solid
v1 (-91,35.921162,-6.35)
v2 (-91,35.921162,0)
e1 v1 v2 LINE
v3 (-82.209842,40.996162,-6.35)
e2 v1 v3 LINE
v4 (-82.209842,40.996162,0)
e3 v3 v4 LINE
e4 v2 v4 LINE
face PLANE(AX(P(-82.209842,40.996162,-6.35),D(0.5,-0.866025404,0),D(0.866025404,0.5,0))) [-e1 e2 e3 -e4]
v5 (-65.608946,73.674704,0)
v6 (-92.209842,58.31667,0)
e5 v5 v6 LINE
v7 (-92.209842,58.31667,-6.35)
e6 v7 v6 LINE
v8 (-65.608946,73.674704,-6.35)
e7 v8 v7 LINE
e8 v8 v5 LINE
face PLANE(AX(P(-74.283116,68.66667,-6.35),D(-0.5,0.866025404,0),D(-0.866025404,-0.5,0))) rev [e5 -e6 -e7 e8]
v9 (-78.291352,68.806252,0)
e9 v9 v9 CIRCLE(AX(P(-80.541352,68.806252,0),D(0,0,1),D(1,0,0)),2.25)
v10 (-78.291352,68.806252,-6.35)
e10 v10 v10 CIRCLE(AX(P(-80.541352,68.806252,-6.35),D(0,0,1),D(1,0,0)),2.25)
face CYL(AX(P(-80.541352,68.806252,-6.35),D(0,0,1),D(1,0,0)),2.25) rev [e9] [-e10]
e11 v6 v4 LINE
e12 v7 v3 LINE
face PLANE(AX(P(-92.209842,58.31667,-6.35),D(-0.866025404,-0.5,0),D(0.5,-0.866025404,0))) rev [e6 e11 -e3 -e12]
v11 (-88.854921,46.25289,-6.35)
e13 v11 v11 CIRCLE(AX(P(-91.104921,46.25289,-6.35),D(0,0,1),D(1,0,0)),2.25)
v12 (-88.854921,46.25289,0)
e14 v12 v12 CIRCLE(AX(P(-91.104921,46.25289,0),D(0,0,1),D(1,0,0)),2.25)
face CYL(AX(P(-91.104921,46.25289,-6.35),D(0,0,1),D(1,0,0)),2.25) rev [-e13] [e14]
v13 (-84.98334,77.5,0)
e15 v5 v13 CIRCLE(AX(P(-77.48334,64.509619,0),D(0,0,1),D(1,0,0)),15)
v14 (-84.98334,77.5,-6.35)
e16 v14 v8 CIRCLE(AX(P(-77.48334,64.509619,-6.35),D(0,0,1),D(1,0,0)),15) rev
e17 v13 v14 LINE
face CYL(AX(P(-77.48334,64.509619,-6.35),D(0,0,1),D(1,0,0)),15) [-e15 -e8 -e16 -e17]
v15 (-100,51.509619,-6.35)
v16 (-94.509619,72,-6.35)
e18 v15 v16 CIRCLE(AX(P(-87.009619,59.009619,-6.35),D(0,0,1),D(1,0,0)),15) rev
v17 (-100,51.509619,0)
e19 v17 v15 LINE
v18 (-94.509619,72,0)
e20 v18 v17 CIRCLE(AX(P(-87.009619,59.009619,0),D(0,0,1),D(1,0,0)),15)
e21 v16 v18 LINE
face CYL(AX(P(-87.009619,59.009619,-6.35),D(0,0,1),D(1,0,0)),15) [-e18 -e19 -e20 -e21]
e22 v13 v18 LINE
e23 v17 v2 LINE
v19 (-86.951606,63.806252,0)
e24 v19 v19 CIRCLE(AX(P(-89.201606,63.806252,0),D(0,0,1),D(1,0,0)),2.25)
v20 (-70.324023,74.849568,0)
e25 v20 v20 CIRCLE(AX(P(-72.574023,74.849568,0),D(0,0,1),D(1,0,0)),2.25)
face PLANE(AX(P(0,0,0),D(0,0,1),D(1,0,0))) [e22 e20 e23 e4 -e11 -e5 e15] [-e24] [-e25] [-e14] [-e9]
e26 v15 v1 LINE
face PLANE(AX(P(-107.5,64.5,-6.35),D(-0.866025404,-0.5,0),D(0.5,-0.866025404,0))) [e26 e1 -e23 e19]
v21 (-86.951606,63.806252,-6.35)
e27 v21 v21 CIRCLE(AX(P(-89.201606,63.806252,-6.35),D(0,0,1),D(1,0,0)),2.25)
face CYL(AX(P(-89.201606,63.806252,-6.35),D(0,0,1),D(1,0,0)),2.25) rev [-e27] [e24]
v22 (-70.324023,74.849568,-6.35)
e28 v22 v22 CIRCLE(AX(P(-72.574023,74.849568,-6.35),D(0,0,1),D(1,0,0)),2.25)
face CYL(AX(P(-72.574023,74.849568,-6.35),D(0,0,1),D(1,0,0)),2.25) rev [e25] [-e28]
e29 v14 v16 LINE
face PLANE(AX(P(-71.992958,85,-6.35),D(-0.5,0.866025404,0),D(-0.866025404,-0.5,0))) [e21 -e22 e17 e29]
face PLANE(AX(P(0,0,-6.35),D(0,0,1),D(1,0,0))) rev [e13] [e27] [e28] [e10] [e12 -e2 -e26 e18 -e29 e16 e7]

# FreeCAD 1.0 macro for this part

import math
import FreeCAD as App
import Part
import Sketcher
Q = App.Units.Quantity


def edges_at(feature, points):
    """Names of the edges that pass closest to the given points."""
    edges = feature.Shape.Edges
    near = lambda p: min(range(len(edges)), key=lambda i: edges[i].distToShape(Part.Vertex(*p))[0])
    return sorted({f"Edge{near(p) + 1}" for p in points})


def add_polygon(sketch, points):
    """Adds a closed chain of lines whose ends are joined by coincident constraints."""
    first, n = sketch.GeometryCount, len(points)
    for a, b in zip(points, points[1:] + points[:1]):
        sketch.addGeometry(Part.LineSegment(App.Vector(*a, 0), App.Vector(*b, 0)), False)
    for i in range(n):
        sketch.addConstraint(Sketcher.Constraint("Coincident", first + i, 2, first + (i + 1) % n, 1))

doc = App.newDocument("Part")
params = doc.addObject("Spreadsheet::Sheet", "Params")
for row, (alias, value) in enumerate([
    ("sketch1_length", "41 mm"),
    ("sketch1_length2", "60 mm"),
    ("sketch1_width", "53.75 mm"),
    ("pad1_length", "6.35 mm"),
    ("fillet_radius", "20 mm"),
    ("fillet2_radius", "15 mm"),
    ("sketch2_diameter", "4.5 mm"),
    ("sketch2_length", "42 mm"),
    ("sketch2_length2", "6 mm"),
    ("sketch2_length3", "20.7 mm"),
    ("pocket1_length", "6.35 mm"),
    ("sketch3_diameter", "4.5 mm"),
    ("sketch3_length", "42 mm"),
    ("sketch3_length2", "6 mm"),
    ("sketch3_length3", "20.7 mm"),
    ("pocket2_length", "6.35 mm"),
    ("sketch4_diameter", "4 mm"),
    ("hole_diameter", "4 mm"),
    ("sketch5_radius", "15 mm"),
    ("sketch5_length", "20 mm"),
    ("sketch5_length2", "18 mm"),
    ("sketch5_length3", "11 mm"),
    ("sketch5_width", "257.77 mm"),
    ("sketch6_diameter", "4.5 mm"),
], start=1):
    params.set(f"A{row}", alias)
    params.set(f"B{row}", "=" + value)
    params.setAlias(f"B{row}", alias)

body = doc.addObject("PartDesign::Body", "Body")

# Sketch on XY plane
sketch1 = body.newObject("Sketcher::SketchObject", "Sketch")
sketch1.AttachmentSupport = (doc.getObject("XY_Plane"), [""])
sketch1.MapMode = "FlatFace"
add_polygon(sketch1, [(55, 55), (-55, 55), (-72, 85), (-108, 64), (-78, 13), (-78, -13), (-108, -64), (-72, -85), (-55, -55), (55, -55), (72, -85), (108, -64), (78, -13), (78, 13), (108, 64), (72, 85)])  # lines 0-15
add_polygon(sketch1, [(-27, -37), (-27, 37), (27, 37), (27, -37)])  # lines 16-19
sketch1.addConstraint(Sketcher.Constraint("Horizontal", 0))
sketch1.addConstraint(Sketcher.Constraint("Vertical", 4))
sketch1.addConstraint(Sketcher.Constraint("Horizontal", 8))
sketch1.addConstraint(Sketcher.Constraint("Vertical", 12))
sketch1.addConstraint(Sketcher.Constraint("Vertical", 16))
sketch1.addConstraint(Sketcher.Constraint("Horizontal", 17))
sketch1.addConstraint(Sketcher.Constraint("Vertical", 18))
sketch1.addConstraint(Sketcher.Constraint("Horizontal", 19))
sketch1.addConstraint(Sketcher.Constraint("Symmetric", 0, 2, 8, 2, -1, 1))
sketch1.addConstraint(Sketcher.Constraint("Symmetric", 1, 2, 9, 2, -1, 1))
sketch1.addConstraint(Sketcher.Constraint("Symmetric", 2, 2, 10, 2, -1, 1))
sketch1.addConstraint(Sketcher.Constraint("Symmetric", 3, 2, 11, 2, -1, 1))
sketch1.addConstraint(Sketcher.Constraint("Symmetric", 5, 2, 13, 2, -1, 1))
sketch1.addConstraint(Sketcher.Constraint("Symmetric", 6, 2, 14, 2, -1, 1))
sketch1.addConstraint(Sketcher.Constraint("Symmetric", 16, 2, 18, 2, -1, 1))
sketch1.addConstraint(Sketcher.Constraint("Symmetric", 6, 2, 9, 2, -2))
sketch1.addConstraint(Sketcher.Constraint("Symmetric", 5, 2, 10, 2, -2))
sketch1.addConstraint(Sketcher.Constraint("Perpendicular", 1, 2))
sketch1.addConstraint(Sketcher.Constraint("Perpendicular", 2, 3))
sketch1.addConstraint(Sketcher.Constraint("Perpendicular", 5, 6))
sketch1.addConstraint(Sketcher.Constraint("Perpendicular", 6, 7))
sketch1.addConstraint(Sketcher.Constraint("Parallel", 7, 13))
sketch1.addConstraint(Sketcher.Constraint("Perpendicular", 14, 15))
sketch1.addConstraint(Sketcher.Constraint("Angle", 1, Q("120 deg")))
sketch1.addConstraint(Sketcher.Constraint("Distance", 2, Q("41 mm")))
sketch1.addConstraint(Sketcher.Constraint("Distance", 3, Q("60 mm")))
sketch1.addConstraint(Sketcher.Constraint("DistanceY", -1, 1, 0, 2, Q("55 mm")))
sketch1.addConstraint(Sketcher.Constraint("DistanceY", -1, 1, 1, 2, Q("85 mm")))
sketch1.addConstraint(Sketcher.Constraint("DistanceX", 4, 2, 10, 2, Q("185 mm")))
sketch1.addConstraint(Sketcher.Constraint("DistanceX", 17, 1, 17, 2, Q("53.75 mm")))
sketch1.addConstraint(Sketcher.Constraint("DistanceY", 16, 1, 16, 2, Q("73.333333 mm")))
sketch1.setExpression("Constraints[44]", "Params.sketch1_length")
sketch1.setExpression("Constraints[45]", "Params.sketch1_length2")
sketch1.setExpression("Constraints[49]", "Params.sketch1_width")
pad1 = body.newObject("PartDesign::Pad", "Pad")
pad1.Profile = sketch1
pad1.setExpression("Length", "Params.pad1_length")
pad1.Reversed = True
doc.recompute()

fillet = body.newObject("PartDesign::Fillet", "Fillet")
fillet.Base = (pad1, edges_at(pad1, [
    (-54.672, 55, -3.175),
    (54.672, 55, -3.175),
    (77.5, 12.538, -3.175),
    (77.5, -12.538, -3.175),
    (54.672, -55, -3.175),
    (-54.672, -55, -3.175),
    (-77.5, -12.538, -3.175),
    (-77.5, 12.538, -3.175),
    (-26.875, -36.667, -3.175),
    (-26.875, 36.667, -3.175),
    (26.875, 36.667, -3.175),
    (26.875, -36.667, -3.175),
]))
fillet.setExpression("Radius", "Params.fillet_radius")
doc.recompute()

fillet2 = body.newObject("PartDesign::Fillet", "Fillet001")
fillet2.Base = (fillet, edges_at(fillet, [
    (71.993, 85, -3.175),
    (107.5, 64.5, -3.175),
    (107.5, -64.5, -3.175),
    (71.993, -85, -3.175),
    (-71.993, -85, -3.175),
    (-107.5, -64.5, -3.175),
    (-107.5, 64.5, -3.175),
    (-71.993, 85, -3.175),
]))
fillet2.setExpression("Radius", "Params.fillet2_radius")

# Sketch on XY plane
sketch2 = body.newObject("Sketcher::SketchObject", "Sketch001")
sketch2.AttachmentSupport = (doc.getObject("XY_Plane"), [""])
sketch2.MapMode = "FlatFace"
sketch2.addGeometry(Part.Circle(App.Vector(-56.3, 26.8, 0), App.Vector(0, 0, 1), 2.2), False)  # 0
sketch2.addGeometry(Part.Circle(App.Vector(-65, 21.8, 0), App.Vector(0, 0, 1), 2.2), False)  # 1
sketch2.addGeometry(Part.Circle(App.Vector(-89.2, 63.8, 0), App.Vector(0, 0, 1), 2.2), False)  # 2
sketch2.addGeometry(Part.Circle(App.Vector(-80.5, 68.8, 0), App.Vector(0, 0, 1), 2.2), False)  # 3
add_polygon(sketch2, [(-53.3, 32.3), (-74.3, 68.7), (-92.2, 58.3), (-71.2, 21.9)])  # lines 4-7
sketch2.addGeometry(Part.LineSegment(App.Vector(-54.7, 9.5, 0), App.Vector(-51.7, 4.3, 0)), False)  # 8
sketch2.addGeometry(Part.ArcOfCircle(Part.Circle(App.Vector(-49.7, 5.5, 0), App.Vector(0, 0, 1), 2.2), math.radians(-150), math.radians(30)), False)  # 9
sketch2.addGeometry(Part.LineSegment(App.Vector(-47.8, 6.6, 0), App.Vector(-50.8, 11.8, 0)), False)  # 10
sketch2.addGeometry(Part.ArcOfCircle(Part.Circle(App.Vector(-52.7, 10.7, 0), App.Vector(0, 0, 1), 2.2), math.radians(30), math.radians(210)), False)  # 11
sketch2.addConstraint(Sketcher.Constraint("Tangent", 8, 2, 9, 1))
sketch2.addConstraint(Sketcher.Constraint("Tangent", 9, 2, 10, 1))
sketch2.addConstraint(Sketcher.Constraint("Tangent", 10, 2, 11, 1))
sketch2.addConstraint(Sketcher.Constraint("Tangent", 11, 2, 8, 1))
sketch2.addConstraint(Sketcher.Constraint("Equal", 0, 1))
sketch2.addConstraint(Sketcher.Constraint("Equal", 1, 2))
sketch2.addConstraint(Sketcher.Constraint("Equal", 2, 3))
sketch2.addConstraint(Sketcher.Constraint("Equal", 3, 9))
sketch2.addConstraint(Sketcher.Constraint("Equal", 9, 11))
sketch2.addConstraint(Sketcher.Constraint("Perpendicular", 4, 5))
sketch2.addConstraint(Sketcher.Constraint("Perpendicular", 5, 6))
sketch2.addConstraint(Sketcher.Constraint("Perpendicular", 6, 7))
sketch2.addConstraint(Sketcher.Constraint("Perpendicular", 7, 8))
sketch2.addConstraint(Sketcher.Constraint("Diameter", 0, Q("4.5 mm")))
sketch2.addConstraint(Sketcher.Constraint("Angle", 4, Q("120 deg")))
sketch2.addConstraint(Sketcher.Constraint("Distance", 4, Q("42 mm")))
sketch2.addConstraint(Sketcher.Constraint("Distance", 8, Q("6 mm")))
sketch2.addConstraint(Sketcher.Constraint("DistanceY", 1, 3, 0, 3, Q("5 mm")))
sketch2.addConstraint(Sketcher.Constraint("DistanceY", 2, 3, 3, 3, Q("5 mm")))
sketch2.addConstraint(Sketcher.Constraint("Distance", 5, Q("20.7 mm")))
sketch2.addConstraint(Sketcher.Constraint("DistanceX", 2, 3, 1, 3, Q("24.25 mm")))
sketch2.addConstraint(Sketcher.Constraint("DistanceX", 3, 3, 0, 3, Q("24.25 mm")))
sketch2.addConstraint(Sketcher.Constraint("DistanceY", 11, 3, 1, 3, Q("11.1399 mm")))
sketch2.addConstraint(Sketcher.Constraint("DistanceY", -1, 1, 0, 3, Q("26.80402 mm")))
sketch2.addConstraint(Sketcher.Constraint("DistanceX", 9, 3, -1, 1, Q("49.746479 mm")))
sketch2.addConstraint(Sketcher.Constraint("DistanceY", -1, 1, 4, 2, Q("68.66667 mm")))
sketch2.addConstraint(Sketcher.Constraint("DistanceX", 2, 3, 4, 2, Q("14.91849 mm")))
sketch2.addConstraint(Sketcher.Constraint("DistanceX", 5, 2, 3, 3, Q("11.66849 mm")))
sketch2.addConstraint(Sketcher.Constraint("DistanceX", 1, 3, 8, 2, Q("13.25657 mm")))
sketch2.addConstraint(Sketcher.Constraint("DistanceY", -1, 1, 2, 3, Q("63.806252 mm")))
sketch2.setExpression("Constraints[17]", "Params.sketch2_diameter")
sketch2.setExpression("Constraints[19]", "Params.sketch2_length")
sketch2.setExpression("Constraints[20]", "Params.sketch2_length2")
sketch2.setExpression("Constraints[23]", "Params.sketch2_length3")
pocket1 = body.newObject("PartDesign::Pocket", "Pocket")
pocket1.Profile = sketch2
pocket1.setExpression("Length", "Params.pocket1_length")
doc.recompute()

mirrored = body.newObject("PartDesign::Mirrored", "Mirrored")
mirrored.Originals = [pocket1]
mirrored.MirrorPlane = (doc.getObject("XZ_Plane"), [""])
body.Tip = mirrored
doc.recompute()

mirrored2 = body.newObject("PartDesign::Mirrored", "Mirrored001")
mirrored2.Originals = [pocket1]
mirrored2.MirrorPlane = (doc.getObject("YZ_Plane"), [""])
body.Tip = mirrored2

# Sketch on XY plane
sketch3 = body.newObject("Sketcher::SketchObject", "Sketch002")
sketch3.AttachmentSupport = (doc.getObject("XY_Plane"), [""])
sketch3.MapMode = "FlatFace"
sketch3.addGeometry(Part.Circle(App.Vector(56.3, -26.8, 0), App.Vector(0, 0, 1), 2.2), False)  # 0
sketch3.addGeometry(Part.Circle(App.Vector(65, -21.8, 0), App.Vector(0, 0, 1), 2.2), False)  # 1
sketch3.addGeometry(Part.Circle(App.Vector(89.2, -63.8, 0), App.Vector(0, 0, 1), 2.2), False)  # 2
sketch3.addGeometry(Part.Circle(App.Vector(80.5, -68.8, 0), App.Vector(0, 0, 1), 2.2), False)  # 3
add_polygon(sketch3, [(53.3, -32.3), (74.3, -68.7), (92.2, -58.3), (71.2, -21.9)])  # lines 4-7
sketch3.addGeometry(Part.LineSegment(App.Vector(54.7, -9.5, 0), App.Vector(51.7, -4.3, 0)), False)  # 8
sketch3.addGeometry(Part.ArcOfCircle(Part.Circle(App.Vector(49.7, -5.5, 0), App.Vector(0, 0, 1), 2.2), math.radians(30), math.radians(210)), False)  # 9
sketch3.addGeometry(Part.LineSegment(App.Vector(47.8, -6.6, 0), App.Vector(50.8, -11.8, 0)), False)  # 10
sketch3.addGeometry(Part.ArcOfCircle(Part.Circle(App.Vector(52.7, -10.7, 0), App.Vector(0, 0, 1), 2.2), math.radians(-150), math.radians(30)), False)  # 11
sketch3.addConstraint(Sketcher.Constraint("Tangent", 8, 2, 9, 1))
sketch3.addConstraint(Sketcher.Constraint("Tangent", 9, 2, 10, 1))
sketch3.addConstraint(Sketcher.Constraint("Tangent", 10, 2, 11, 1))
sketch3.addConstraint(Sketcher.Constraint("Tangent", 11, 2, 8, 1))
sketch3.addConstraint(Sketcher.Constraint("Equal", 0, 1))
sketch3.addConstraint(Sketcher.Constraint("Equal", 1, 2))
sketch3.addConstraint(Sketcher.Constraint("Equal", 2, 3))
sketch3.addConstraint(Sketcher.Constraint("Equal", 3, 9))
sketch3.addConstraint(Sketcher.Constraint("Equal", 9, 11))
sketch3.addConstraint(Sketcher.Constraint("Perpendicular", 4, 5))
sketch3.addConstraint(Sketcher.Constraint("Perpendicular", 5, 6))
sketch3.addConstraint(Sketcher.Constraint("Perpendicular", 6, 7))
sketch3.addConstraint(Sketcher.Constraint("Perpendicular", 7, 8))
sketch3.addConstraint(Sketcher.Constraint("Diameter", 0, Q("4.5 mm")))
sketch3.addConstraint(Sketcher.Constraint("Angle", 4, Q("-60 deg")))
sketch3.addConstraint(Sketcher.Constraint("Distance", 4, Q("42 mm")))
sketch3.addConstraint(Sketcher.Constraint("Distance", 8, Q("6 mm")))
sketch3.addConstraint(Sketcher.Constraint("DistanceY", 0, 3, 1, 3, Q("5 mm")))
sketch3.addConstraint(Sketcher.Constraint("DistanceY", 3, 3, 2, 3, Q("5 mm")))
sketch3.addConstraint(Sketcher.Constraint("Distance", 5, Q("20.7 mm")))
sketch3.addConstraint(Sketcher.Constraint("DistanceX", 1, 3, 2, 3, Q("24.25 mm")))
sketch3.addConstraint(Sketcher.Constraint("DistanceX", 0, 3, 3, 3, Q("24.25 mm")))
sketch3.addConstraint(Sketcher.Constraint("DistanceY", 1, 3, 11, 3, Q("11.1399 mm")))
sketch3.addConstraint(Sketcher.Constraint("DistanceY", 0, 3, -1, 1, Q("26.80402 mm")))
sketch3.addConstraint(Sketcher.Constraint("DistanceX", -1, 1, 9, 3, Q("49.746479 mm")))
sketch3.addConstraint(Sketcher.Constraint("DistanceY", 4, 2, -1, 1, Q("68.66667 mm")))
sketch3.addConstraint(Sketcher.Constraint("DistanceX", 4, 2, 2, 3, Q("14.91849 mm")))
sketch3.addConstraint(Sketcher.Constraint("DistanceX", 3, 3, 5, 2, Q("11.66849 mm")))
sketch3.addConstraint(Sketcher.Constraint("DistanceX", 8, 2, 1, 3, Q("13.25657 mm")))
sketch3.addConstraint(Sketcher.Constraint("DistanceY", 2, 3, -1, 1, Q("63.806252 mm")))
sketch3.setExpression("Constraints[17]", "Params.sketch3_diameter")
sketch3.setExpression("Constraints[19]", "Params.sketch3_length")
sketch3.setExpression("Constraints[20]", "Params.sketch3_length2")
sketch3.setExpression("Constraints[23]", "Params.sketch3_length3")
pocket2 = body.newObject("PartDesign::Pocket", "Pocket001")
pocket2.Profile = sketch3
pocket2.setExpression("Length", "Params.pocket2_length")

# Sketch on XY plane
sketch4 = body.newObject("Sketcher::SketchObject", "Sketch003")
sketch4.AttachmentSupport = (doc.getObject("XY_Plane"), [""])
sketch4.MapMode = "FlatFace"
sketch4.addGeometry(Part.Circle(App.Vector(33, 48, 0), App.Vector(0, 0, 1), 2), False)
sketch4.addGeometry(Part.Circle(App.Vector(-33, 48, 0), App.Vector(0, 0, 1), 2), False)
sketch4.addGeometry(Part.Circle(App.Vector(-33, -48, 0), App.Vector(0, 0, 1), 2), False)
sketch4.addGeometry(Part.Circle(App.Vector(33, -48, 0), App.Vector(0, 0, 1), 2), False)
sketch4.addConstraint(Sketcher.Constraint("Equal", 0, 1))
sketch4.addConstraint(Sketcher.Constraint("Equal", 1, 2))
sketch4.addConstraint(Sketcher.Constraint("Equal", 2, 3))
sketch4.addConstraint(Sketcher.Constraint("Symmetric", 0, 3, 2, 3, -1, 1))
sketch4.addConstraint(Sketcher.Constraint("Symmetric", 1, 3, 3, 3, -1, 1))
sketch4.addConstraint(Sketcher.Constraint("Symmetric", 0, 3, 1, 3, -2))
sketch4.addConstraint(Sketcher.Constraint("Diameter", 0, Q("4 mm")))
sketch4.addConstraint(Sketcher.Constraint("DistanceX", -1, 1, 0, 3, Q("33 mm")))
sketch4.addConstraint(Sketcher.Constraint("DistanceY", -1, 1, 0, 3, Q("48 mm")))
sketch4.setExpression("Constraints[6]", "Params.sketch4_diameter")
doc.recompute()
hole = body.newObject("PartDesign::Hole", "Hole")
hole.Profile = sketch4
hole.ThreadType = "None"
hole.setExpression("Diameter", "Params.hole_diameter")
hole.DepthType = "ThroughAll"

# Sketch on XY plane
sketch5 = body.newObject("Sketcher::SketchObject", "Sketch004")
sketch5.AttachmentSupport = (doc.getObject("XY_Plane"), [""])
sketch5.MapMode = "FlatFace"
add_polygon(sketch5, [(-129, 106), (-129, -106), (129, -106), (129, 106)])  # lines 0-3
sketch5.addGeometry(Part.ArcOfCircle(Part.Circle(App.Vector(-77, 65, 0), App.Vector(0, 0, 1), 15), math.radians(38), math.radians(120)), False)  # 4
sketch5.addGeometry(Part.LineSegment(App.Vector(-66, 74, 0), App.Vector(-92, 58, 0)), False)  # 5
sketch5.addGeometry(Part.LineSegment(App.Vector(-92, 58, 0), App.Vector(-82, 41, 0)), False)  # 6
sketch5.addGeometry(Part.LineSegment(App.Vector(-82, 41, 0), App.Vector(-91, 36, 0)), False)  # 7
sketch5.addGeometry(Part.LineSegment(App.Vector(-91, 36, 0), App.Vector(-100, 52, 0)), False)  # 8
sketch5.addGeometry(Part.ArcOfCircle(Part.Circle(App.Vector(-87, 59, 0), App.Vector(0, 0, 1), 15), math.radians(120), math.radians(210)), False)  # 9
sketch5.addGeometry(Part.LineSegment(App.Vector(-95, 72, 0), App.Vector(-85, 78, 0)), False)  # 10
sketch5.addConstraint(Sketcher.Constraint("Coincident", 4, 1, 5, 1))
sketch5.addConstraint(Sketcher.Constraint("Coincident", 5, 2, 6, 1))
sketch5.addConstraint(Sketcher.Constraint("Coincident", 6, 2, 7, 1))
sketch5.addConstraint(Sketcher.Constraint("Coincident", 7, 2, 8, 1))
sketch5.addConstraint(Sketcher.Constraint("Tangent", 8, 2, 9, 2))
sketch5.addConstraint(Sketcher.Constraint("Tangent", 9, 1, 10, 1))
sketch5.addConstraint(Sketcher.Constraint("Tangent", 10, 2, 4, 2))
sketch5.addConstraint(Sketcher.Constraint("Vertical", 0))
sketch5.addConstraint(Sketcher.Constraint("Horizontal", 1))
sketch5.addConstraint(Sketcher.Constraint("Vertical", 2))
sketch5.addConstraint(Sketcher.Constraint("Horizontal", 3))
sketch5.addConstraint(Sketcher.Constraint("Equal", 4, 9))
sketch5.addConstraint(Sketcher.Constraint("Symmetric", 0, 2, 2, 2, -1, 1))
sketch5.addConstraint(Sketcher.Constraint("Perpendicular", 5, 6))
sketch5.addConstraint(Sketcher.Constraint("Perpendicular", 6, 7))
sketch5.addConstraint(Sketcher.Constraint("Perpendicular", 7, 8))
sketch5.addConstraint(Sketcher.Constraint("Perpendicular", 8, 10))
sketch5.addConstraint(Sketcher.Constraint("Radius", 4, Q("15 mm")))
sketch5.addConstraint(Sketcher.Constraint("Angle", 5, Q("-150 deg")))
sketch5.addConstraint(Sketcher.Constraint("Distance", 6, Q("20 mm")))
sketch5.addConstraint(Sketcher.Constraint("Distance", 8, Q("18 mm")))
sketch5.addConstraint(Sketcher.Constraint("Distance", 10, Q("11 mm")))
sketch5.addConstraint(Sketcher.Constraint("DistanceX", 7, 2, -1, 1, Q("91 mm")))
sketch5.addConstraint(Sketcher.Constraint("DistanceY", -1, 1, 9, 1, Q("72 mm")))
sketch5.addConstraint(Sketcher.Constraint("DistanceX", 1, 1, 1, 2, Q("257.77 mm")))
sketch5.addConstraint(Sketcher.Constraint("DistanceY", 0, 2, 0, 1, Q("212.77 mm")))
sketch5.addConstraint(Sketcher.Constraint("Distance", 7, Q("10.15 mm")))
sketch5.setExpression("Constraints[21]", "Params.sketch5_radius")
sketch5.setExpression("Constraints[23]", "Params.sketch5_length")
sketch5.setExpression("Constraints[24]", "Params.sketch5_length2")
sketch5.setExpression("Constraints[25]", "Params.sketch5_length3")
sketch5.setExpression("Constraints[28]", "Params.sketch5_width")
pocket3 = body.newObject("PartDesign::Pocket", "Pocket002")
pocket3.Profile = sketch5
pocket3.Type = "ThroughAll"

# Sketch on XY plane
sketch6 = body.newObject("Sketcher::SketchObject", "Sketch005")
sketch6.AttachmentSupport = (doc.getObject("XY_Plane"), [""])
sketch6.MapMode = "FlatFace"
sketch6.addGeometry(Part.Circle(App.Vector(-91.1, 46.3, 0), App.Vector(0, 0, 1), 2.2), False)
sketch6.addGeometry(Part.Circle(App.Vector(-72.6, 74.8, 0), App.Vector(0, 0, 1), 2.2), False)
sketch6.addConstraint(Sketcher.Constraint("Equal", 0, 1))
sketch6.addConstraint(Sketcher.Constraint("Diameter", 0, Q("4.5 mm")))
sketch6.addConstraint(Sketcher.Constraint("DistanceX", 0, 3, 1, 3, Q("18.530898 mm")))
sketch6.addConstraint(Sketcher.Constraint("DistanceX", 0, 3, -1, 1, Q("91.104921 mm")))
sketch6.addConstraint(Sketcher.Constraint("DistanceY", -1, 1, 0, 3, Q("46.25289 mm")))
sketch6.addConstraint(Sketcher.Constraint("DistanceY", -1, 1, 1, 3, Q("74.849568 mm")))
sketch6.setExpression("Constraints[1]", "Params.sketch6_diameter")
pocket4 = body.newObject("PartDesign::Pocket", "Pocket003")
pocket4.Profile = sketch6
pocket4.Type = "ThroughAll"

doc.recompute()
